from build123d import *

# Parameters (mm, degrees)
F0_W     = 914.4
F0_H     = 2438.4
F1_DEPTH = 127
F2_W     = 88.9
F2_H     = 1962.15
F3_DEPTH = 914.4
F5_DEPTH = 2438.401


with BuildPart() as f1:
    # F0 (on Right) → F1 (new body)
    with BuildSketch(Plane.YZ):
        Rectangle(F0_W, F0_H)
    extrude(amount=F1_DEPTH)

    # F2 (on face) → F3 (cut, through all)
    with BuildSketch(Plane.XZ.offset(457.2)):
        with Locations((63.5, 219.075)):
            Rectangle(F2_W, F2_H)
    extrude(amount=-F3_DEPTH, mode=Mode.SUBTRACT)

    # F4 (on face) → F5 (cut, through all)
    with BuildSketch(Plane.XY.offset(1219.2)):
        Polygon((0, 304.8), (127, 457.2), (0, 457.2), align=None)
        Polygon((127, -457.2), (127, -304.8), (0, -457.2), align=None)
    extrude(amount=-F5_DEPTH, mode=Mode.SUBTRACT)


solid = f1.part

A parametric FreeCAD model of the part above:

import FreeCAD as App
import Part
import Sketcher
Q = App.Units.Quantity

doc = App.newDocument("Part")
params = doc.addObject("Spreadsheet::Sheet", "Params")
for row, (alias, value) in enumerate([
    ("sketch1_width", "36 in"),
    ("sketch1_height", "96 in"),
    ("pad1_length", "5 in"),
    ("sketch2_width", "3.5 in"),
    ("sketch2_height", "77.25 in"),
    ("sketch3_width", "5 in"),
    ("sketch3_height", "6 in"),
], start=1):
    params.set(f"A{row}", alias)
    params.set(f"B{row}", "=" + value)
    params.setAlias(f"B{row}", alias)

body = doc.addObject("PartDesign::Body", "Body")

sketch1 = body.newObject("Sketcher::SketchObject", "Sketch")
sketch1.AttachmentSupport = (doc.getObject("YZ_Plane"), [""])
sketch1.MapMode = "FlatFace"
sketch1.addGeometry(Part.LineSegment(App.Vector(-457, 1219, 0), App.Vector(-457, -1219, 0)), False)
sketch1.addGeometry(Part.LineSegment(App.Vector(-457, -1219, 0), App.Vector(457, -1219, 0)), False)
sketch1.addGeometry(Part.LineSegment(App.Vector(457, -1219, 0), App.Vector(457, 1219, 0)), False)
sketch1.addGeometry(Part.LineSegment(App.Vector(457, 1219, 0), App.Vector(-457, 1219, 0)), False)
sketch1.addConstraint(Sketcher.Constraint("Coincident", 0, 2, 1, 1))
sketch1.addConstraint(Sketcher.Constraint("Coincident", 1, 2, 2, 1))
sketch1.addConstraint(Sketcher.Constraint("Coincident", 2, 2, 3, 1))
sketch1.addConstraint(Sketcher.Constraint("Coincident", 3, 2, 0, 1))
sketch1.addConstraint(Sketcher.Constraint("Vertical", 0))
sketch1.addConstraint(Sketcher.Constraint("Horizontal", 1))
sketch1.addConstraint(Sketcher.Constraint("Vertical", 2))
sketch1.addConstraint(Sketcher.Constraint("Horizontal", 3))
sketch1.addConstraint(Sketcher.Constraint("Symmetric", 0, 2, 2, 2, -1, 1))
sketch1.addConstraint(Sketcher.Constraint("DistanceX", 1, 1, 1, 2, Q("36 in")))
sketch1.addConstraint(Sketcher.Constraint("DistanceY", 0, 2, 0, 1, Q("96 in")))
sketch1.setExpression("Constraints[9]", "Params.sketch1_width")
sketch1.setExpression("Constraints[10]", "Params.sketch1_height")
pad1 = body.newObject("PartDesign::Pad", "Pad")
pad1.Profile = sketch1
pad1.setExpression("Length", "Params.pad1_length")

sketch2 = body.newObject("Sketcher::SketchObject", "Sketch001")
sketch2.AttachmentSupport = (doc.getObject("XZ_Plane"), [""])
sketch2.MapMode = "FlatFace"
sketch2.AttachmentOffset = App.Placement(App.Vector(0, 0, 18 * 25.4), App.Rotation())
sketch2.addGeometry(Part.LineSegment(App.Vector(19, 1200, 0), App.Vector(19, -762, 0)), False)
sketch2.addGeometry(Part.LineSegment(App.Vector(19, -762, 0), App.Vector(108, -762, 0)), False)
sketch2.addGeometry(Part.LineSegment(App.Vector(108, -762, 0), App.Vector(108, 1200, 0)), False)
sketch2.addGeometry(Part.LineSegment(App.Vector(108, 1200, 0), App.Vector(19, 1200, 0)), False)
sketch2.addConstraint(Sketcher.Constraint("Coincident", 0, 2, 1, 1))
sketch2.addConstraint(Sketcher.Constraint("Coincident", 1, 2, 2, 1))
sketch2.addConstraint(Sketcher.Constraint("Coincident", 2, 2, 3, 1))
sketch2.addConstraint(Sketcher.Constraint("Coincident", 3, 2, 0, 1))
sketch2.addConstraint(Sketcher.Constraint("Vertical", 0))
sketch2.addConstraint(Sketcher.Constraint("Horizontal", 1))
sketch2.addConstraint(Sketcher.Constraint("Vertical", 2))
sketch2.addConstraint(Sketcher.Constraint("Horizontal", 3))
sketch2.addConstraint(Sketcher.Constraint("DistanceX", 1, 1, 1, 2, Q("3.5 in")))
sketch2.addConstraint(Sketcher.Constraint("DistanceY", 0, 2, -1, 1, Q("30 in")))
sketch2.addConstraint(Sketcher.Constraint("DistanceY", 0, 2, 0, 1, Q("77.25 in")))
sketch2.addConstraint(Sketcher.Constraint("DistanceX", -1, 1, 0, 2, Q("0.75 in")))
sketch2.setExpression("Constraints[8]", "Params.sketch2_width")
sketch2.setExpression("Constraints[10]", "Params.sketch2_height")
pocket1 = body.newObject("PartDesign::Pocket", "Pocket")
pocket1.Profile = sketch2
pocket1.Type = "ThroughAll"

sketch3 = body.newObject("Sketcher::SketchObject", "Sketch002")
sketch3.AttachmentSupport = (doc.getObject("XY_Plane"), [""])
sketch3.MapMode = "FlatFace"
sketch3.AttachmentOffset = App.Placement(App.Vector(0, 0, 48 * 25.4), App.Rotation())
sketch3.addGeometry(Part.LineSegment(App.Vector(0, 305, 0), App.Vector(127, 457, 0)), False)
sketch3.addGeometry(Part.LineSegment(App.Vector(127, 457, 0), App.Vector(0, 457, 0)), False)
sketch3.addGeometry(Part.LineSegment(App.Vector(0, 457, 0), App.Vector(0, 305, 0)), False)
sketch3.addGeometry(Part.LineSegment(App.Vector(127, -457, 0), App.Vector(127, -305, 0)), False)
sketch3.addGeometry(Part.LineSegment(App.Vector(127, -305, 0), App.Vector(0, -457, 0)), False)
sketch3.addGeometry(Part.LineSegment(App.Vector(0, -457, 0), App.Vector(127, -457, 0)), False)
sketch3.addConstraint(Sketcher.Constraint("Coincident", 0, 2, 1, 1))
sketch3.addConstraint(Sketcher.Constraint("Coincident", 1, 2, 2, 1))
sketch3.addConstraint(Sketcher.Constraint("Coincident", 2, 2, 0, 1))
sketch3.addConstraint(Sketcher.Constraint("Coincident", 3, 2, 4, 1))
sketch3.addConstraint(Sketcher.Constraint("Coincident", 4, 2, 5, 1))
sketch3.addConstraint(Sketcher.Constraint("Coincident", 5, 2, 3, 1))
sketch3.addConstraint(Sketcher.Constraint("Horizontal", 1))
sketch3.addConstraint(Sketcher.Constraint("Vertical", 2))
sketch3.addConstraint(Sketcher.Constraint("Vertical", 3))
sketch3.addConstraint(Sketcher.Constraint("Horizontal", 5))
sketch3.addConstraint(Sketcher.Constraint("Symmetric", 1, 2, 4, 2, -1, 1))
sketch3.addConstraint(Sketcher.Constraint("PointOnObject", 1, 2, -2))
sketch3.addConstraint(Sketcher.Constraint("Parallel", 0, 4))
sketch3.addConstraint(Sketcher.Constraint("Vertical", 0, 2, 3, 2))
sketch3.addConstraint(Sketcher.Constraint("DistanceX", 1, 2, 1, 1, Q("5 in")))
sketch3.addConstraint(Sketcher.Constraint("DistanceY", 2, 2, 2, 1, Q("6 in")))
sketch3.addConstraint(Sketcher.Constraint("DistanceY", -1, 1, 0, 2, Q("18 in")))
sketch3.setExpression("Constraints[14]", "Params.sketch3_width")
sketch3.setExpression("Constraints[15]", "Params.sketch3_height")
pocket2 = body.newObject("PartDesign::Pocket", "Pocket001")
pocket2.Profile = sketch3
pocket2.Type = "ThroughAll"

doc.recompute()
